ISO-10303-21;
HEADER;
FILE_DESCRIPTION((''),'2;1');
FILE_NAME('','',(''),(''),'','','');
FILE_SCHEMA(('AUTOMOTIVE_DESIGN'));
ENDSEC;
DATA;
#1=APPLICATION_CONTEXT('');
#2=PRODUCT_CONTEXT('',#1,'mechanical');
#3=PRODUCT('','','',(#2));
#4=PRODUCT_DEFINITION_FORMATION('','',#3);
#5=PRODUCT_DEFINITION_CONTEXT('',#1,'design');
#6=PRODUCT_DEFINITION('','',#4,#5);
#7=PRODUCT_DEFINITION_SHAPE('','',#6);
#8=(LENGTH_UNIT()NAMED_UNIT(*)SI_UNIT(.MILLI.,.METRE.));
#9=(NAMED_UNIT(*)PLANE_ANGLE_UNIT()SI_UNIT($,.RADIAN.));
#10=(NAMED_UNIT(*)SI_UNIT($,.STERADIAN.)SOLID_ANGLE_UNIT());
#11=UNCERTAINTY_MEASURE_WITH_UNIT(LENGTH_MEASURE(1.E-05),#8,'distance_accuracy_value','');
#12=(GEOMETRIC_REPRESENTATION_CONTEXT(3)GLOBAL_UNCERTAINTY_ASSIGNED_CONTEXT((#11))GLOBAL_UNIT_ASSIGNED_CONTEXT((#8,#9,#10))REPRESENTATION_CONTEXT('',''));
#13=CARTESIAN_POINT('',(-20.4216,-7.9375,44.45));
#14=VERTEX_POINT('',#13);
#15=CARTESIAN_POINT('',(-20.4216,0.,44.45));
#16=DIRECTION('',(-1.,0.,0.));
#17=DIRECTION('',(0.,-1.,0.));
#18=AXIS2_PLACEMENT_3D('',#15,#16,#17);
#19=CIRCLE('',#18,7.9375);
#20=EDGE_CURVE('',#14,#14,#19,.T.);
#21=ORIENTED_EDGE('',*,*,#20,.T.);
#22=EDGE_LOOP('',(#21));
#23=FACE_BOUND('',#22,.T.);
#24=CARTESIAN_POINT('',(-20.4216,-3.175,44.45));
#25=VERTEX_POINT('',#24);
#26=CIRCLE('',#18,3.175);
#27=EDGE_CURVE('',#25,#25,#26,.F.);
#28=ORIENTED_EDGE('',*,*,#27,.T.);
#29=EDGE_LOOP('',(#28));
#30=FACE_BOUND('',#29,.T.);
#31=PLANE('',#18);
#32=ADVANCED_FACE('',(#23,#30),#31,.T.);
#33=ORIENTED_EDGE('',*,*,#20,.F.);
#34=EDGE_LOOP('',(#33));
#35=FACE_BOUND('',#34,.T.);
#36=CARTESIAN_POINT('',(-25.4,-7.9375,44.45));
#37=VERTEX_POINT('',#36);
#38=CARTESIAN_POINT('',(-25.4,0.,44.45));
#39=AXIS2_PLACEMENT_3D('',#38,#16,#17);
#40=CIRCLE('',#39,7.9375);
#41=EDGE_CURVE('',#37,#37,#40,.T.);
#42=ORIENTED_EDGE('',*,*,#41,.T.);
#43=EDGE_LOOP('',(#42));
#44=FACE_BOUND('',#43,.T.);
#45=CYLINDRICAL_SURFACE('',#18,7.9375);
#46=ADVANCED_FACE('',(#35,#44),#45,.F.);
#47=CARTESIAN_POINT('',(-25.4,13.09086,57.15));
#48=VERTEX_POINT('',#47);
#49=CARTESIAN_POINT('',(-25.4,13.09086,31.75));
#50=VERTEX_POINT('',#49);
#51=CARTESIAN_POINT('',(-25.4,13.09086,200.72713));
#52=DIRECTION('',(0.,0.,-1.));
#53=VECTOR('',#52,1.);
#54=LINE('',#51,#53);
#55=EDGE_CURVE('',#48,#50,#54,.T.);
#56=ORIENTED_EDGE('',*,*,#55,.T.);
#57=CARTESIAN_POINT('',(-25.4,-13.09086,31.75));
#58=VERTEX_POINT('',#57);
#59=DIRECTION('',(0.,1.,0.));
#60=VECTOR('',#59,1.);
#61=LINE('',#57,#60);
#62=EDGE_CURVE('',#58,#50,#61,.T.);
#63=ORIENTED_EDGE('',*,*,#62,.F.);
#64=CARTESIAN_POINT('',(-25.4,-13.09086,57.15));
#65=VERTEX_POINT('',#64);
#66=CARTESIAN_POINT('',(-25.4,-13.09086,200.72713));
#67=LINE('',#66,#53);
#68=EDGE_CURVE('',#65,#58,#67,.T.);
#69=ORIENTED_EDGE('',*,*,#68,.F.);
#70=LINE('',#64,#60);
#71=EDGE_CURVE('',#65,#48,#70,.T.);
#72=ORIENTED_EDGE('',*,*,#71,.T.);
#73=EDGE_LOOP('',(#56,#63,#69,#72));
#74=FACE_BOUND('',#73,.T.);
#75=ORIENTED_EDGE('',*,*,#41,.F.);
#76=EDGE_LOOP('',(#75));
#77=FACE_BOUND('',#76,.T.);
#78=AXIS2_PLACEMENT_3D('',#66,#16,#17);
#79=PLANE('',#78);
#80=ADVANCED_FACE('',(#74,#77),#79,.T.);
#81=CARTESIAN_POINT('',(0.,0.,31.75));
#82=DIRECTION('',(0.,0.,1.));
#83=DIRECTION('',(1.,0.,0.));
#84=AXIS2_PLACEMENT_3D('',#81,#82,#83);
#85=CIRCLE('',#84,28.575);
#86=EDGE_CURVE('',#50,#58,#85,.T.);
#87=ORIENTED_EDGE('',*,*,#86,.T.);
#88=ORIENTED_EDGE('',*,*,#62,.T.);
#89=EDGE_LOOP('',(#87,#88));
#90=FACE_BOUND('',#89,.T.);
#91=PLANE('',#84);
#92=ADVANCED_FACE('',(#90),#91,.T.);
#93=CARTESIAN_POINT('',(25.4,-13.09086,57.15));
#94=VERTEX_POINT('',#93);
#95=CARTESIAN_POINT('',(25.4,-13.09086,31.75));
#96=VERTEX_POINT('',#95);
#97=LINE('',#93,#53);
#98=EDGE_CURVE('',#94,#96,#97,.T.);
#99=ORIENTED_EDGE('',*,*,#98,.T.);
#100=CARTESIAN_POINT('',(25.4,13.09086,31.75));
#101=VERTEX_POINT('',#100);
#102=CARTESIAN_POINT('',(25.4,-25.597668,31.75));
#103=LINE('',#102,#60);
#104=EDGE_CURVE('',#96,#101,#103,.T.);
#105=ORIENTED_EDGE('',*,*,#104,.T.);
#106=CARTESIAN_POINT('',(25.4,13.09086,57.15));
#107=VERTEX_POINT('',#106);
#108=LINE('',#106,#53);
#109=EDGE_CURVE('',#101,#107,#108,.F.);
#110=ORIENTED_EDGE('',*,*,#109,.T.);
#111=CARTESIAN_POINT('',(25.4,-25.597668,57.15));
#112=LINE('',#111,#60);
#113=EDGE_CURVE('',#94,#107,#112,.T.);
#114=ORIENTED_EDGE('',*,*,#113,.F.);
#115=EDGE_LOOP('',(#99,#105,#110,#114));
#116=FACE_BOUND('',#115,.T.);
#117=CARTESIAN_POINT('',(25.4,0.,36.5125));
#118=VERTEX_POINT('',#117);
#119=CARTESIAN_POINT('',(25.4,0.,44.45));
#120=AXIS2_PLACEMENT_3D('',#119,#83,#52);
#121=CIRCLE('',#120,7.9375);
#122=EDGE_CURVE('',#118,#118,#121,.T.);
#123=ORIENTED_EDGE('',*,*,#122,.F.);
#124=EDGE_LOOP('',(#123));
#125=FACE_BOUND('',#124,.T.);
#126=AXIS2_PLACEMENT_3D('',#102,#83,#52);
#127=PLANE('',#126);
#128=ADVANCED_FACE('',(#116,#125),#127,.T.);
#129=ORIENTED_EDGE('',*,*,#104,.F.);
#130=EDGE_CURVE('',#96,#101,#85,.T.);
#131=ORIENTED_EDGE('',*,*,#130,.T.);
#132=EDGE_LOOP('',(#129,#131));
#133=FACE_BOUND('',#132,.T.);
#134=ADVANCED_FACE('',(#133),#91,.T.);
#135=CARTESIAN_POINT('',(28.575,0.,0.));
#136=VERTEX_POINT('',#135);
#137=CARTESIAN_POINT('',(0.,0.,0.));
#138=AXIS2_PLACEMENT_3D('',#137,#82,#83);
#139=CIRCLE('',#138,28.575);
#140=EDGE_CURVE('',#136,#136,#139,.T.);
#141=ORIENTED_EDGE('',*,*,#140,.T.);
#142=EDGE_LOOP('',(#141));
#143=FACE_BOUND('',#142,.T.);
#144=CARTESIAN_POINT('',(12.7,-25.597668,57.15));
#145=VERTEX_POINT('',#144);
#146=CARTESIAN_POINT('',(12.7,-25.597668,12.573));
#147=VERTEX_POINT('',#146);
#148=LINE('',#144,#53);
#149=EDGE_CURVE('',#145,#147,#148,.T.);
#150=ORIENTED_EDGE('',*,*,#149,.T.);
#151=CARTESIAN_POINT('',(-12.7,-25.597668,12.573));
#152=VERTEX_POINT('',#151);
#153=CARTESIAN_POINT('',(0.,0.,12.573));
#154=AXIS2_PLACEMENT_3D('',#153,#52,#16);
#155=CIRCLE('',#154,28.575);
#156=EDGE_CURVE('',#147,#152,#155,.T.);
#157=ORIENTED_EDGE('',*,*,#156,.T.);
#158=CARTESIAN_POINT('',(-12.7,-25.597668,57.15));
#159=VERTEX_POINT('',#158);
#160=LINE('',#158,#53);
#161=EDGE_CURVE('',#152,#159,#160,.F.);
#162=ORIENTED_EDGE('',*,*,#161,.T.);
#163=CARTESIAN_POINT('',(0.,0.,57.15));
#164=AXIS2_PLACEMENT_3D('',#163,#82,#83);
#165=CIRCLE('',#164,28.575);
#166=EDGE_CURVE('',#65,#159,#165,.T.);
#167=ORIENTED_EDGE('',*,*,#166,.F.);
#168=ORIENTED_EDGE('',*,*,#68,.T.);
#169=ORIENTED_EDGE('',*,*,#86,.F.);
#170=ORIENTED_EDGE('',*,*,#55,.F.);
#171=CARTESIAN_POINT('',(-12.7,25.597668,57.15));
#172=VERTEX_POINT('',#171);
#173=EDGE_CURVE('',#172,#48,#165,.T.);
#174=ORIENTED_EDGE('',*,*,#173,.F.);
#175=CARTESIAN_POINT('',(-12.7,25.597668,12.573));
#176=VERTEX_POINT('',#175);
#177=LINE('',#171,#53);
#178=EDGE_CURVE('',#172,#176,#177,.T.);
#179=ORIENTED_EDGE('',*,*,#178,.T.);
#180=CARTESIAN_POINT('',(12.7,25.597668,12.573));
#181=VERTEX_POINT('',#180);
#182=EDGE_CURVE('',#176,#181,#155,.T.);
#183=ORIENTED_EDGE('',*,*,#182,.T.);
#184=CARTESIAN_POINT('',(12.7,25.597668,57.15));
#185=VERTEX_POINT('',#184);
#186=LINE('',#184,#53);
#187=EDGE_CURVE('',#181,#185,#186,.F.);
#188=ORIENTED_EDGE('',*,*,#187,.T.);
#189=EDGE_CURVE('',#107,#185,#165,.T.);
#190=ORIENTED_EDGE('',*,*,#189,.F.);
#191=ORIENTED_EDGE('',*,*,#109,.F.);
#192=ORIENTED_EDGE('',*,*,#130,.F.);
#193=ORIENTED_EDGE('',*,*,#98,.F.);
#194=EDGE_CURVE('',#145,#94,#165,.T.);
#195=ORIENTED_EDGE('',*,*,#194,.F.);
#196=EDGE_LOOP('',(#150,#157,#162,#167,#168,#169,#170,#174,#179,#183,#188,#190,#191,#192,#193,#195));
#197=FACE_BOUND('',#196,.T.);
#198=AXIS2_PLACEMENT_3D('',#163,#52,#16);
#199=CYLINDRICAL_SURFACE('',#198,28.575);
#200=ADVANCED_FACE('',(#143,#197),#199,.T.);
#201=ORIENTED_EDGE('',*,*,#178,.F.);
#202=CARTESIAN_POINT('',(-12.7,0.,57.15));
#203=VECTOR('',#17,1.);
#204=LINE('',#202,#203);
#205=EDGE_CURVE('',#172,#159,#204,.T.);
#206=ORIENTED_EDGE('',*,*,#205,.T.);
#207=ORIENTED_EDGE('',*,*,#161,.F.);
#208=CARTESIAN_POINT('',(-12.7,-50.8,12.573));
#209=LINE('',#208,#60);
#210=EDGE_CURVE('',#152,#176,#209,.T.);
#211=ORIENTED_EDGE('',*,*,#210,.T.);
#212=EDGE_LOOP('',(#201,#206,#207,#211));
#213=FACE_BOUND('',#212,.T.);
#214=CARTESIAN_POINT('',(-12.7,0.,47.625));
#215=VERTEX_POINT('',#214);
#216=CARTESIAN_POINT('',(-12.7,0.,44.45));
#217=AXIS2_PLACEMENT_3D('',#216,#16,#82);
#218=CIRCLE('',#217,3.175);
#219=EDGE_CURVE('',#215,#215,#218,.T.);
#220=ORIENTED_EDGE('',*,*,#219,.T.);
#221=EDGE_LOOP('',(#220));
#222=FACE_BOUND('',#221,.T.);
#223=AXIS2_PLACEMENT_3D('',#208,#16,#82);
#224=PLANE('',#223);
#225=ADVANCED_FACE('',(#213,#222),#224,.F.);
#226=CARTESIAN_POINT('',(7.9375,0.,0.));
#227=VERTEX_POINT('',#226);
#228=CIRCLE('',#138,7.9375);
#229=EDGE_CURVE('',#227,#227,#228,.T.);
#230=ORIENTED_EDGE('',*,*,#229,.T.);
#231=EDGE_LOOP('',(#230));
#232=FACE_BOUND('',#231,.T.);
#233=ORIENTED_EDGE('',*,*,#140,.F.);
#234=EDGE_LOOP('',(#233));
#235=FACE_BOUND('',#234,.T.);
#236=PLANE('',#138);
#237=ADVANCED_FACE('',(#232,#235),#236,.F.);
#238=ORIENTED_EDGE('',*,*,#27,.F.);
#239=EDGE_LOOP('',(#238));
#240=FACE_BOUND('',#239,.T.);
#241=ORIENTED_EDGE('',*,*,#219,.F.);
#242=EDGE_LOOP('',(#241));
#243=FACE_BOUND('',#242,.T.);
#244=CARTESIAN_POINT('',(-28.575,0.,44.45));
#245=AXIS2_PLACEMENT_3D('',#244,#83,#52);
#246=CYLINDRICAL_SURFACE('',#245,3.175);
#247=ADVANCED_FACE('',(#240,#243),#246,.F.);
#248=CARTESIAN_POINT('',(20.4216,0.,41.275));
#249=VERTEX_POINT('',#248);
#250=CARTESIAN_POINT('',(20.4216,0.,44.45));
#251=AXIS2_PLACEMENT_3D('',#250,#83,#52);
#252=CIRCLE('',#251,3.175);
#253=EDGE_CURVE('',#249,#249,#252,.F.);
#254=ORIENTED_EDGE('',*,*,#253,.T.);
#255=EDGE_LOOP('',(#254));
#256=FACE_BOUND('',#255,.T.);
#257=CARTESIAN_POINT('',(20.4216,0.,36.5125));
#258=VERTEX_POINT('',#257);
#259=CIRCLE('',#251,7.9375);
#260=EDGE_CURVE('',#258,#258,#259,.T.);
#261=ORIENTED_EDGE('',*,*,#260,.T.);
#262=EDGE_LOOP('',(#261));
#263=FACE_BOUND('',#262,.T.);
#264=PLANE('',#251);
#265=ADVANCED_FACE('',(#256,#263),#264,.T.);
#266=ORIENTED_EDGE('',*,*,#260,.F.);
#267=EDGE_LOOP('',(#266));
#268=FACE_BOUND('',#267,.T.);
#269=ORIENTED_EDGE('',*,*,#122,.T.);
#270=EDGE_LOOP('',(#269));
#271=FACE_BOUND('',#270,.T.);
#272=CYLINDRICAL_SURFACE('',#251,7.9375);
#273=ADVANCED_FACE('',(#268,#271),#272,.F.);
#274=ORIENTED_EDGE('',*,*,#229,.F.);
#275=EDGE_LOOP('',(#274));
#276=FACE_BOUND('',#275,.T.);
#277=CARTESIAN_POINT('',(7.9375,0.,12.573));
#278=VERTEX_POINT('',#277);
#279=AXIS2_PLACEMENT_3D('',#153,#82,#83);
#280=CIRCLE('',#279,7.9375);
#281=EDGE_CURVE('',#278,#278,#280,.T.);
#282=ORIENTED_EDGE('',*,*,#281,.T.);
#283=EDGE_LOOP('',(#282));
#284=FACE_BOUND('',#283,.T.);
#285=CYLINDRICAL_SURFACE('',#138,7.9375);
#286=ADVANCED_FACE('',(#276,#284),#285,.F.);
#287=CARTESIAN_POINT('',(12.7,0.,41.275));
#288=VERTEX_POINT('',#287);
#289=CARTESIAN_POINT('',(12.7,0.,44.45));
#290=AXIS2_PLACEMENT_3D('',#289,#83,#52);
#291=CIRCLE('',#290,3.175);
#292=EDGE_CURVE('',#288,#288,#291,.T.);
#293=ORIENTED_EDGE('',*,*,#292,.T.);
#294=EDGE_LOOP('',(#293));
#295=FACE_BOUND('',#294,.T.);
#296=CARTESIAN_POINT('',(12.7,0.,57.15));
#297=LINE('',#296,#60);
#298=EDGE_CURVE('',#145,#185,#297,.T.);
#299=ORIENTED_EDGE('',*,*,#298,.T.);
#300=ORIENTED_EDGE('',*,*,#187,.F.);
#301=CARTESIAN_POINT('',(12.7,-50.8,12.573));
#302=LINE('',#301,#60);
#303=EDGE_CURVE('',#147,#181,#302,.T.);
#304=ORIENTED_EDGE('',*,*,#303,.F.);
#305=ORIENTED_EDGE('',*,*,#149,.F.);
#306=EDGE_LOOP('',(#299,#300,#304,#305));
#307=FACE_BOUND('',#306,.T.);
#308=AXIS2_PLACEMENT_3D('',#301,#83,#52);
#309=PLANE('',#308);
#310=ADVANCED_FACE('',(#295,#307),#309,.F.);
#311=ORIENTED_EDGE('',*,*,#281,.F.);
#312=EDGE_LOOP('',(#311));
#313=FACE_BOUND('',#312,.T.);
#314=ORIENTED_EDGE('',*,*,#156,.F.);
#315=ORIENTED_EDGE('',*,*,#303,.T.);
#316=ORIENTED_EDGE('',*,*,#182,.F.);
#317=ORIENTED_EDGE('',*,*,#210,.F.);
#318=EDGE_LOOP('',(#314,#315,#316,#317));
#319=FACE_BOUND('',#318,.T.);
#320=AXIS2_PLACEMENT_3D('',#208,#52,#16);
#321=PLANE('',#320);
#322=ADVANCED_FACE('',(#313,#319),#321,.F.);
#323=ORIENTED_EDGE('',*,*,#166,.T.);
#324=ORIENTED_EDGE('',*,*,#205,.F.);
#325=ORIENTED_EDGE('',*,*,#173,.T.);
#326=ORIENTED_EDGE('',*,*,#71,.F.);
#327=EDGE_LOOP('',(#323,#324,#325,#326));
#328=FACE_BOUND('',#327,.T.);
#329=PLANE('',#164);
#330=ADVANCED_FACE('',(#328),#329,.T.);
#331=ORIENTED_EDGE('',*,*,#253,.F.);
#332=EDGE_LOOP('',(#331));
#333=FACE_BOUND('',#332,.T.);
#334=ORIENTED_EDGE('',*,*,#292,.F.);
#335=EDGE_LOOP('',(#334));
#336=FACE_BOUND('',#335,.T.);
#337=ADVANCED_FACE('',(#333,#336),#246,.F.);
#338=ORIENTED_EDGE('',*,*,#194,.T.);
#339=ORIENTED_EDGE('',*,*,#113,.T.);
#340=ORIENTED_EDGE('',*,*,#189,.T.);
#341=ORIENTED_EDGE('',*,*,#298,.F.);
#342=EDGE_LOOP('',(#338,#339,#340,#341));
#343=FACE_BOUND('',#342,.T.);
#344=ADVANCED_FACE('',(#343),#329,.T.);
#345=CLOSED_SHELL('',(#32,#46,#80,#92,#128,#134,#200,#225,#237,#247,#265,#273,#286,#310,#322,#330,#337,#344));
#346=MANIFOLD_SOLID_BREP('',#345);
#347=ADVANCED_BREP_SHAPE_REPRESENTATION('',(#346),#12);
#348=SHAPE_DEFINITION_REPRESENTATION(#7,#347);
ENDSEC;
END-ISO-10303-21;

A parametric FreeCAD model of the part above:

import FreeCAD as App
import Part
import Sketcher

V = App.Vector
Q = App.Units.Quantity

doc = App.newDocument("Part")
body = doc.addObject("PartDesign::Body", "Body")

sketch1 = body.newObject("Sketcher::SketchObject", "Sketch")
sketch1.AttachmentSupport = (doc.getObject("XY_Plane"), [""])
sketch1.MapMode = "FlatFace"
sketch1.addGeometry(Part.Circle(V(0, 0, 0), V(0, 0, 1), 29), False)
sketch1.addConstraint([
    Sketcher.Constraint("Coincident", 0, 3, -1, 1),
    Sketcher.Constraint("Diameter", 0, Q("2.25 in")),
])
pad1 = body.newObject("PartDesign::Pad", "Pad")
pad1.Profile = sketch1
pad1.Length = Q("2.25 in")

sketch2 = body.newObject("Sketcher::SketchObject", "Sketch001")
sketch2.AttachmentSupport = (doc.getObject("XZ_Plane"), [""])
sketch2.MapMode = "FlatFace"
sketch2.addGeometry([
    Part.LineSegment(V(-13, 13, 0), V(-13, 57, 0)),
    Part.LineSegment(V(-13, 57, 0), V(13, 57, 0)),
    Part.LineSegment(V(13, 57, 0), V(13, 13, 0)),
    Part.LineSegment(V(13, 13, 0), V(-13, 13, 0)),
], False)
sketch2.addConstraint([
    Sketcher.Constraint("Coincident", 0, 2, 1, 1),
    Sketcher.Constraint("Coincident", 1, 2, 2, 1),
    Sketcher.Constraint("Coincident", 2, 2, 3, 1),
    Sketcher.Constraint("Coincident", 3, 2, 0, 1),
    Sketcher.Constraint("Vertical", 0),
    Sketcher.Constraint("Horizontal", 1),
    Sketcher.Constraint("Vertical", 2),
    Sketcher.Constraint("Horizontal", 3),
    Sketcher.Constraint("DistanceX", 1, 1, 1, 2, Q("1 in")),
    Sketcher.Constraint("DistanceX", 0, 2, -1, 1, Q("0.5 in")),
    Sketcher.Constraint("DistanceY", 0, 1, 0, 2, Q("1.755 in")),
    Sketcher.Constraint("DistanceY", -1, 1, 0, 2, Q("2.25 in")),
])
pocket1 = body.newObject("PartDesign::Pocket", "Pocket")
pocket1.Profile = sketch2
pocket1.Length = Q("4 in")
pocket1.Midplane = True

sketch3 = body.newObject("Sketcher::SketchObject", "Sketch002")
sketch3.AttachmentSupport = (doc.getObject("XY_Plane"), [""])
sketch3.MapMode = "FlatFace"
sketch3.AttachmentOffset = App.Placement(V(0, 0, 0.495 * 25.4), App.Rotation())
sketch3.addGeometry(Part.Circle(V(0, 0, 0), V(0, 0, 1), 8), False)
sketch3.addConstraint([
    Sketcher.Constraint("Coincident", 0, 3, -1, 1),
    Sketcher.Constraint("Diameter", 0, Q("0.625 in")),
])
pocket2 = body.newObject("PartDesign::Pocket", "Pocket001")
pocket2.Profile = sketch3
pocket2.Type = "ThroughAll"

sketch4 = body.newObject("Sketcher::SketchObject", "Sketch003")
sketch4.AttachmentSupport = (doc.getObject("XY_Plane"), [""])
sketch4.MapMode = "FlatFace"
sketch4.AttachmentOffset = App.Placement(V(0, 0, 2.25 * 25.4), App.Rotation())
sketch4.addGeometry([
    Part.LineSegment(V(-39, 39, 0), V(-39, -39, 0)),
    Part.LineSegment(V(-39, -39, 0), V(39, -39, 0)),
    Part.LineSegment(V(39, -39, 0), V(39, 39, 0)),
    Part.LineSegment(V(39, 39, 0), V(-39, 39, 0)),
    Part.LineSegment(V(25, -26, 0), V(-29, -26, 0)),
    Part.LineSegment(V(-29, -26, 0), V(-29, 26, 0)),
    Part.LineSegment(V(-29, 26, 0), V(25, 26, 0)),
    Part.LineSegment(V(25, 26, 0), V(25, -26, 0)),
], False)
sketch4.addConstraint([
    Sketcher.Constraint("Coincident", 0, 2, 1, 1),
    Sketcher.Constraint("Coincident", 1, 2, 2, 1),
    Sketcher.Constraint("Coincident", 2, 2, 3, 1),
    Sketcher.Constraint("Coincident", 3, 2, 0, 1),
    Sketcher.Constraint("Coincident", 4, 2, 5, 1),
    Sketcher.Constraint("Coincident", 5, 2, 6, 1),
    Sketcher.Constraint("Coincident", 6, 2, 7, 1),
    Sketcher.Constraint("Coincident", 7, 2, 4, 1),
    Sketcher.Constraint("Vertical", 0),
    Sketcher.Constraint("Horizontal", 1),
    Sketcher.Constraint("Vertical", 2),
    Sketcher.Constraint("Horizontal", 3),
    Sketcher.Constraint("Horizontal", 4),
    Sketcher.Constraint("Vertical", 5),
    Sketcher.Constraint("Horizontal", 6),
    Sketcher.Constraint("Vertical", 7),
    Sketcher.Constraint("Symmetric", 0, 2, 2, 2, -1, 1),
    Sketcher.Constraint("Equal", 3, 0),
    Sketcher.Constraint("DistanceX", -1, 1, 6, 2, Q("1 in")),
    Sketcher.Constraint("DistanceX", 4, 2, 4, 1, Q("2.125 in")),
    Sketcher.Constraint("DistanceX", 1, 1, 1, 2, 78.948),
    Sketcher.Constraint("DistanceY", 5, 1, 5, 2, 51.195337),
    Sketcher.Constraint("DistanceY", 4, 2, -1, 1, 25.597668),
])
pocket3 = body.newObject("PartDesign::Pocket", "Pocket002")
pocket3.Profile = sketch4
pocket3.Length = Q("1 in")

sketch5 = body.newObject("Sketcher::SketchObject", "Sketch004")
sketch5.AttachmentSupport = (doc.getObject("YZ_Plane"), [""])
sketch5.MapMode = "FlatFace"
sketch5.AttachmentOffset = App.Placement(V(0, 0, 1 * 25.4), App.Rotation())
sketch5.addGeometry(Part.Circle(V(0, 44.5, 0), V(0, 0, 1), 3.2), False)
sketch5.addConstraint([
    Sketcher.Constraint("PointOnObject", 0, 3, -2),
    Sketcher.Constraint("Diameter", 0, Q("0.25 in")),
    Sketcher.Constraint("DistanceY", -1, 1, 0, 3, Q("1.75 in")),
])
pocket4 = body.newObject("PartDesign::Pocket", "Pocket003")
pocket4.Profile = sketch5
pocket4.Type = "ThroughAll"

sketch6 = body.newObject("Sketcher::SketchObject", "Sketch005")
sketch6.AttachmentSupport = (doc.getObject("YZ_Plane"), [""])
sketch6.MapMode = "FlatFace"
sketch6.AttachmentOffset = App.Placement(V(0, 0, 1 * 25.4), App.Rotation())
sketch6.addGeometry(Part.Circle(V(0, 44, 0), V(0, 0, 1), 8), False)
sketch6.addConstraint([
    Sketcher.Constraint("PointOnObject", 0, 3, -2),
    Sketcher.Constraint("Diameter", 0, Q("0.625 in")),
    Sketcher.Constraint("DistanceY", -1, 1, 0, 3, Q("1.75 in")),
])
pocket5 = body.newObject("PartDesign::Pocket", "Pocket004")
pocket5.Profile = sketch6
pocket5.Length = Q("0.196 in")

sketch7 = body.newObject("Sketcher::SketchObject", "Sketch006")
sketch7.AttachmentSupport = (doc.getObject("XY_Plane"), [""])
sketch7.MapMode = "FlatFace"
sketch7.AttachmentOffset = App.Placement(V(0, 0, 2.25 * 25.4), App.Rotation())
sketch7.addGeometry([
    Part.LineSegment(V(-25, -159, 0), V(-25, 159, 0)),
    Part.LineSegment(V(-25, 159, 0), V(-318, 159, 0)),
    Part.LineSegment(V(-318, 159, 0), V(-318, -159, 0)),
    Part.LineSegment(V(-318, -159, 0), V(-25, -159, 0)),
], False)
sketch7.addConstraint([
    Sketcher.Constraint("Coincident", 0, 2, 1, 1),
    Sketcher.Constraint("Coincident", 1, 2, 2, 1),
    Sketcher.Constraint("Coincident", 2, 2, 3, 1),
    Sketcher.Constraint("Coincident", 3, 2, 0, 1),
    Sketcher.Constraint("Vertical", 0),
    Sketcher.Constraint("Horizontal", 1),
    Sketcher.Constraint("Vertical", 2),
    Sketcher.Constraint("Horizontal", 3),
    Sketcher.Constraint("DistanceX", 0, 2, -1, 1, Q("1 in")),
    Sketcher.Constraint("DistanceX", 1, 2, 1, 1, 292.74441),
    Sketcher.Constraint("DistanceY", 0, 1, 0, 2, 318.92613),
    Sketcher.Constraint("DistanceY", -1, 1, 0, 2, 159.463065),
])
pocket6 = body.newObject("PartDesign::Pocket", "Pocket005")
pocket6.Profile = sketch7
pocket6.Type = "TwoLengths"
pocket6.Length = 70.99417
pocket6.Length2 = Q("1 in")
pocket6.Reversed = True

sketch8 = body.newObject("Sketcher::SketchObject", "Sketch007")
sketch8.AttachmentSupport = (doc.getObject("YZ_Plane"), [""])
sketch8.MapMode = "FlatFace"
sketch8.AttachmentOffset = App.Placement(V(0, 0, -0.804 * 25.4), App.Rotation())
sketch8.addGeometry(Part.Circle(V(0, 44, 0), V(0, 0, 1), 8), False)
sketch8.addConstraint([
    Sketcher.Constraint("PointOnObject", 0, 3, -2),
    Sketcher.Constraint("Diameter", 0, Q("0.625 in")),
    Sketcher.Constraint("DistanceY", -1, 1, 0, 3, Q("1.75 in")),
])
pocket7 = body.newObject("PartDesign::Pocket", "Pocket006")
pocket7.Profile = sketch8
pocket7.Length = Q("0.196 in")

doc.recompute()
